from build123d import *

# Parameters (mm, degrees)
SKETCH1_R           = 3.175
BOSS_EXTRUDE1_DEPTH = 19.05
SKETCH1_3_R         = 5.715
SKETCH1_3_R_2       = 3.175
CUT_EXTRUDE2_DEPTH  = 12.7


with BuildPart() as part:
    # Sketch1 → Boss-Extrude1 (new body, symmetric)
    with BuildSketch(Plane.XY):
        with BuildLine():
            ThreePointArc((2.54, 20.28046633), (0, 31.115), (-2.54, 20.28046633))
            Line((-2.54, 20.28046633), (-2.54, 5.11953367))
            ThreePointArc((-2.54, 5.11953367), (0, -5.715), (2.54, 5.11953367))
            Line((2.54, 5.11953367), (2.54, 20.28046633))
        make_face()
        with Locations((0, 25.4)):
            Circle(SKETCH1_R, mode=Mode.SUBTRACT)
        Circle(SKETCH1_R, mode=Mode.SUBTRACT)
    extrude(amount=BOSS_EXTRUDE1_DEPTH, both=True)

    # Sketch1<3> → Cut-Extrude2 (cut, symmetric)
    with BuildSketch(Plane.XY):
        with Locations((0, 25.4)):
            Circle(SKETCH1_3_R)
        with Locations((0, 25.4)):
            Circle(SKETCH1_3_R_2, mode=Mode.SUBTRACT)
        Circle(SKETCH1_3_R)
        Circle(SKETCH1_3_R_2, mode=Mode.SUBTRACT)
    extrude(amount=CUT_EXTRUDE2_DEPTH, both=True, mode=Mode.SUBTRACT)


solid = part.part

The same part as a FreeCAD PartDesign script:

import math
import FreeCAD as App
import Part
import Sketcher
from FreeCAD import Vector
Q = App.Units.Quantity

doc = App.newDocument("Part")
body = doc.addObject("PartDesign::Body", "Body")

sketch1 = body.newObject("Sketcher::SketchObject", "Sketch")
sketch1.AttachmentSupport = (doc.getObject("XY_Plane"), [""])
sketch1.MapMode = "FlatFace"
sketch1.addGeometry([
    Part.ArcOfCircle(Part.Circle(Vector(0, 25.4, 0), Vector(0, 0, 1), 5.7), math.radians(-64), math.radians(244)),
    Part.LineSegment(Vector(-2.5, 20.3, 0), Vector(-2.5, 5.1, 0)),
    Part.ArcOfCircle(Part.Circle(Vector(0, 0, 0), Vector(0, 0, 1), 5.7), math.radians(116), math.radians(424)),
    Part.LineSegment(Vector(2.5, 5.1, 0), Vector(2.5, 20.3, 0)),
    Part.Circle(Vector(0, 0, 0), Vector(0, 0, 1), 3.2),
    Part.Circle(Vector(0, 25.4, 0), Vector(0, 0, 1), 3.2),
], False)
sketch1.addConstraint([
    Sketcher.Constraint("Coincident", 0, 2, 1, 1),
    Sketcher.Constraint("Coincident", 1, 2, 2, 1),
    Sketcher.Constraint("Coincident", 2, 2, 3, 1),
    Sketcher.Constraint("Coincident", 3, 2, 0, 1),
    Sketcher.Constraint("Vertical", 1),
    Sketcher.Constraint("Vertical", 3),
    Sketcher.Constraint("Coincident", 2, 3, -1, 1),
    Sketcher.Constraint("Coincident", 4, 3, -1, 1),
    Sketcher.Constraint("Coincident", 5, 3, 0, 3),
    Sketcher.Constraint("Equal", 0, 2),
    Sketcher.Constraint("Equal", 4, 5),
    Sketcher.Constraint("Symmetric", 0, 2, 3, 2, -2),
    Sketcher.Constraint("Diameter", 4, Q("0.25 in")),
    Sketcher.Constraint("DistanceY", -1, 1, 0, 3, Q("1 in")),
    Sketcher.Constraint("Radius", 0, Q("0.225 in")),
    Sketcher.Constraint("DistanceX", 0, 2, -1, 1, Q("0.1 in")),
])
pad1 = body.newObject("PartDesign::Pad", "Pad")
pad1.Profile = sketch1
pad1.Length = Q("1.5 in")
pad1.Midplane = True

sketch2 = body.newObject("Sketcher::SketchObject", "Sketch001")
sketch2.AttachmentSupport = (doc.getObject("XY_Plane"), [""])
sketch2.MapMode = "FlatFace"
sketch2.addGeometry([
    Part.Circle(Vector(0, 25.4, 0), Vector(0, 0, 1), 5.7),
    Part.Circle(Vector(0, 25.4, 0), Vector(0, 0, 1), 3.2),
    Part.Circle(Vector(0, 0, 0), Vector(0, 0, 1), 5.7),
    Part.Circle(Vector(0, 0, 0), Vector(0, 0, 1), 3.2),
], False)
sketch2.addConstraint([
    Sketcher.Constraint("Coincident", 2, 3, -1, 1),
    Sketcher.Constraint("Coincident", 3, 3, -1, 1),
    Sketcher.Constraint("Coincident", 1, 3, 0, 3),
    Sketcher.Constraint("Equal", 0, 2),
    Sketcher.Constraint("Equal", 1, 3),
    Sketcher.Constraint("PointOnObject", 0, 3, -2),
    Sketcher.Constraint("Diameter", 0, Q("0.45 in")),
    Sketcher.Constraint("Diameter", 1, Q("0.25 in")),
    Sketcher.Constraint("DistanceY", -1, 1, 0, 3, Q("1 in")),
])
pocket1 = body.newObject("PartDesign::Pocket", "Pocket")
pocket1.Profile = sketch2
pocket1.Length = Q("1 in")
pocket1.Midplane = True

doc.recompute()
